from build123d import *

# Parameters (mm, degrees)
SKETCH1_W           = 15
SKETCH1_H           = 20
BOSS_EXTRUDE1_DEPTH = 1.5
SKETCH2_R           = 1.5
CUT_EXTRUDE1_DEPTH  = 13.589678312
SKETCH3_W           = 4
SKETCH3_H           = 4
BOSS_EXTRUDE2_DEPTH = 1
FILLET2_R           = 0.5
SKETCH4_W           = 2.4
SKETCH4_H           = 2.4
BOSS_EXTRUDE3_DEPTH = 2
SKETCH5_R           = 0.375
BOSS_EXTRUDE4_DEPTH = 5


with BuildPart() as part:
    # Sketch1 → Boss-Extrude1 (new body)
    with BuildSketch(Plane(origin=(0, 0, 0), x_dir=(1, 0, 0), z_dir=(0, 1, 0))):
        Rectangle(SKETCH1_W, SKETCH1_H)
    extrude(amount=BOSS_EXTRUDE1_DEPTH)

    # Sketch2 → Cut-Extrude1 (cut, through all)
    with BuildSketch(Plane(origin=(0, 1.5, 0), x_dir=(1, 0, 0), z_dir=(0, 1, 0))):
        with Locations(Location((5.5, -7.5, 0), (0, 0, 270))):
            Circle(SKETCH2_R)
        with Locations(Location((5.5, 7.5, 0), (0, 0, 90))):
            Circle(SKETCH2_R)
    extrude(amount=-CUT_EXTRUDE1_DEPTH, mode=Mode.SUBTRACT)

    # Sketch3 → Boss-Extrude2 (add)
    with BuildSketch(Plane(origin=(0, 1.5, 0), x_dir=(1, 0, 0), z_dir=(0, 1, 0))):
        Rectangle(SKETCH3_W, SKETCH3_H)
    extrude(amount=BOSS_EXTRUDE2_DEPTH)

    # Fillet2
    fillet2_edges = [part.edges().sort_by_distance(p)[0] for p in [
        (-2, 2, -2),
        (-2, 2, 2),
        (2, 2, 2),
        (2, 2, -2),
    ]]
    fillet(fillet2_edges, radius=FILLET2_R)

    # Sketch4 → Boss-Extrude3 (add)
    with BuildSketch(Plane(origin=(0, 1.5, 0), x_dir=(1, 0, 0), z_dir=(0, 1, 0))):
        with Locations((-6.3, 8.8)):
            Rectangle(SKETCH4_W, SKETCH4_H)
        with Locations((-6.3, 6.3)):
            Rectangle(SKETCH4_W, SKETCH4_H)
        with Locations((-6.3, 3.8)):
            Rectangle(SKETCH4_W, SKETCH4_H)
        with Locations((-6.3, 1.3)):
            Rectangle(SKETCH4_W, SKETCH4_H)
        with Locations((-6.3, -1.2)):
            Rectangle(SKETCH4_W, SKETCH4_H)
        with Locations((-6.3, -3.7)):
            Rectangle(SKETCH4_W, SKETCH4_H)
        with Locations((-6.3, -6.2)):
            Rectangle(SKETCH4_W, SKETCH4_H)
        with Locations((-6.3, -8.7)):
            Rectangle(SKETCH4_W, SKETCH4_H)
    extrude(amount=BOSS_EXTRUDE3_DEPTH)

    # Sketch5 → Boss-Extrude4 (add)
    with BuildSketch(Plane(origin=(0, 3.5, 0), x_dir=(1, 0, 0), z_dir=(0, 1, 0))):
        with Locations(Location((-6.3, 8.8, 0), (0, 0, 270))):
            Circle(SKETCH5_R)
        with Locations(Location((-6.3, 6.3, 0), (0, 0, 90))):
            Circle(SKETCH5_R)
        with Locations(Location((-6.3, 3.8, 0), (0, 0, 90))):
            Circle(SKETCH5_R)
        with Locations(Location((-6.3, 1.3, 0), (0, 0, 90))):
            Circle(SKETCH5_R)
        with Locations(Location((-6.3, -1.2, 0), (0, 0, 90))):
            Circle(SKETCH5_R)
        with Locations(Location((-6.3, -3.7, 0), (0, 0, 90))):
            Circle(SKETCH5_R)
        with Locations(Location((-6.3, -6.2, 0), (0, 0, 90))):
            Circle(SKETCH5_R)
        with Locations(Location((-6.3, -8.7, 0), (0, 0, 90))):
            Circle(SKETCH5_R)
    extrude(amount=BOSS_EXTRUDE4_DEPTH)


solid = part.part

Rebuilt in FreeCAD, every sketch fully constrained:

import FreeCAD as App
import Part
import Sketcher
from FreeCAD import Vector
Q = App.Units.Quantity


def edges_at(feature, points):
    """Names of the edges that pass closest to the given points."""
    edges = feature.Shape.Edges
    near = lambda p: min(range(len(edges)), key=lambda i: edges[i].distToShape(Part.Vertex(*p))[0])
    return sorted({f"Edge{near(p) + 1}" for p in points})

doc = App.newDocument("Part")
body = doc.addObject("PartDesign::Body", "Body")

# Sketch on XZ plane
sketch1 = body.newObject("Sketcher::SketchObject", "Sketch")
sketch1.AttachmentSupport = (doc.getObject("XZ_Plane"), [""])
sketch1.MapMode = "FlatFace"
sketch1.addGeometry([
    Part.LineSegment(Vector(-7.5, -10, 0), Vector(-7.5, 10, 0)),
    Part.LineSegment(Vector(-7.5, 10, 0), Vector(7.5, 10, 0)),
    Part.LineSegment(Vector(7.5, 10, 0), Vector(7.5, -10, 0)),
    Part.LineSegment(Vector(7.5, -10, 0), Vector(-7.5, -10, 0)),
], False)
sketch1.addConstraint([
    Sketcher.Constraint("Coincident", 0, 2, 1, 1),
    Sketcher.Constraint("Coincident", 1, 2, 2, 1),
    Sketcher.Constraint("Coincident", 2, 2, 3, 1),
    Sketcher.Constraint("Coincident", 3, 2, 0, 1),
    Sketcher.Constraint("Vertical", 0),
    Sketcher.Constraint("Horizontal", 1),
    Sketcher.Constraint("Vertical", 2),
    Sketcher.Constraint("Horizontal", 3),
    Sketcher.Constraint("Symmetric", 0, 2, 2, 2, -1, 1),
    Sketcher.Constraint("DistanceX", 1, 1, 1, 2, Q("15 mm")),
    Sketcher.Constraint("DistanceY", 0, 1, 0, 2, Q("20 mm")),
])
pad1 = body.newObject("PartDesign::Pad", "Pad")
pad1.Profile = sketch1
pad1.Length = 1.5
pad1.Reversed = True

# Sketch on XZ plane
sketch2 = body.newObject("Sketcher::SketchObject", "Sketch001")
sketch2.AttachmentSupport = (doc.getObject("XZ_Plane"), [""])
sketch2.MapMode = "FlatFace"
sketch2.AttachmentOffset = App.Placement(Vector(0, 0, -1.5), App.Rotation())
sketch2.addGeometry([
    Part.Circle(Vector(5.5, 7.5, 0), Vector(0, 0, 1), 1.5),
    Part.Circle(Vector(5.5, -7.5, 0), Vector(0, 0, 1), 1.5),
], False)
sketch2.addConstraint([
    Sketcher.Constraint("Equal", 0, 1),
    Sketcher.Constraint("Symmetric", 0, 3, 1, 3, -1),
    Sketcher.Constraint("Diameter", 0, Q("3 mm")),
    Sketcher.Constraint("DistanceY", 1, 3, 0, 3, Q("15 mm")),
    Sketcher.Constraint("DistanceX", -1, 1, 0, 3, Q("5.5 mm")),
])
pocket1 = body.newObject("PartDesign::Pocket", "Pocket")
pocket1.Profile = sketch2
pocket1.Type = "ThroughAll"
pocket1.Reversed = True

# Sketch on XZ plane
sketch3 = body.newObject("Sketcher::SketchObject", "Sketch002")
sketch3.AttachmentSupport = (doc.getObject("XZ_Plane"), [""])
sketch3.MapMode = "FlatFace"
sketch3.AttachmentOffset = App.Placement(Vector(0, 0, -1.5), App.Rotation())
sketch3.addGeometry([
    Part.LineSegment(Vector(-2, -2, 0), Vector(-2, 2, 0)),
    Part.LineSegment(Vector(-2, 2, 0), Vector(2, 2, 0)),
    Part.LineSegment(Vector(2, 2, 0), Vector(2, -2, 0)),
    Part.LineSegment(Vector(2, -2, 0), Vector(-2, -2, 0)),
], False)
sketch3.addConstraint([
    Sketcher.Constraint("Coincident", 0, 2, 1, 1),
    Sketcher.Constraint("Coincident", 1, 2, 2, 1),
    Sketcher.Constraint("Coincident", 2, 2, 3, 1),
    Sketcher.Constraint("Coincident", 3, 2, 0, 1),
    Sketcher.Constraint("Vertical", 0),
    Sketcher.Constraint("Horizontal", 1),
    Sketcher.Constraint("Vertical", 2),
    Sketcher.Constraint("Horizontal", 3),
    Sketcher.Constraint("Symmetric", 0, 2, 2, 2, -1, 1),
    Sketcher.Constraint("Equal", 3, 0),
    Sketcher.Constraint("DistanceX", 1, 1, 1, 2, Q("4 mm")),
])
pad2 = body.newObject("PartDesign::Pad", "Pad001")
pad2.Profile = sketch3
pad2.Length = 1
pad2.Reversed = True
doc.recompute()

fillet = body.newObject("PartDesign::Fillet", "Fillet")
fillet.Base = (pad2, edges_at(pad2, [
    (-2, 2, -2),
    (-2, 2, 2),
    (2, 2, 2),
    (2, 2, -2),
]))
fillet.Radius = 0.5

# Sketch on XZ plane
sketch4 = body.newObject("Sketcher::SketchObject", "Sketch003")
sketch4.AttachmentSupport = (doc.getObject("XZ_Plane"), [""])
sketch4.MapMode = "FlatFace"
sketch4.AttachmentOffset = App.Placement(Vector(0, 0, -1.5), App.Rotation())
sketch4.addGeometry([
    Part.LineSegment(Vector(-7.5, -10, 0), Vector(-7.5, -7.6, 0)),  # 0
    Part.LineSegment(Vector(-7.5, -7.6, 0), Vector(-5.1, -7.6, 0)),  # 1
    Part.LineSegment(Vector(-5.1, -7.6, 0), Vector(-5.1, -10, 0)),  # 2
    Part.LineSegment(Vector(-5.1, -10, 0), Vector(-7.5, -10, 0)),  # 3
    Part.LineSegment(Vector(-7.5, -7.5, 0), Vector(-7.5, -5.1, 0)),  # 4
    Part.LineSegment(Vector(-7.5, -5.1, 0), Vector(-5.1, -5.1, 0)),  # 5
    Part.LineSegment(Vector(-5.1, -5.1, 0), Vector(-5.1, -7.5, 0)),  # 6
    Part.LineSegment(Vector(-5.1, -7.5, 0), Vector(-7.5, -7.5, 0)),  # 7
    Part.LineSegment(Vector(-7.5, -5, 0), Vector(-7.5, -2.6, 0)),  # 8
    Part.LineSegment(Vector(-7.5, -2.6, 0), Vector(-5.1, -2.6, 0)),  # 9
    Part.LineSegment(Vector(-5.1, -2.6, 0), Vector(-5.1, -5, 0)),  # 10
    Part.LineSegment(Vector(-5.1, -5, 0), Vector(-7.5, -5, 0)),  # 11
    Part.LineSegment(Vector(-7.5, -2.5, 0), Vector(-7.5, -0.1, 0)),  # 12
    Part.LineSegment(Vector(-7.5, -0.1, 0), Vector(-5.1, -0.1, 0)),  # 13
    Part.LineSegment(Vector(-5.1, -0.1, 0), Vector(-5.1, -2.5, 0)),  # 14
    Part.LineSegment(Vector(-5.1, -2.5, 0), Vector(-7.5, -2.5, 0)),  # 15
    Part.LineSegment(Vector(-7.5, 0, 0), Vector(-7.5, 2.4, 0)),  # 16
    Part.LineSegment(Vector(-7.5, 2.4, 0), Vector(-5.1, 2.4, 0)),  # 17
    Part.LineSegment(Vector(-5.1, 2.4, 0), Vector(-5.1, 0, 0)),  # 18
    Part.LineSegment(Vector(-5.1, 0, 0), Vector(-7.5, 0, 0)),  # 19
    Part.LineSegment(Vector(-7.5, 2.5, 0), Vector(-7.5, 4.9, 0)),  # 20
    Part.LineSegment(Vector(-7.5, 4.9, 0), Vector(-5.1, 4.9, 0)),  # 21
    Part.LineSegment(Vector(-5.1, 4.9, 0), Vector(-5.1, 2.5, 0)),  # 22
    Part.LineSegment(Vector(-5.1, 2.5, 0), Vector(-7.5, 2.5, 0)),  # 23
    Part.LineSegment(Vector(-7.5, 5, 0), Vector(-7.5, 7.4, 0)),  # 24
    Part.LineSegment(Vector(-7.5, 7.4, 0), Vector(-5.1, 7.4, 0)),  # 25
    Part.LineSegment(Vector(-5.1, 7.4, 0), Vector(-5.1, 5, 0)),  # 26
    Part.LineSegment(Vector(-5.1, 5, 0), Vector(-7.5, 5, 0)),  # 27
    Part.LineSegment(Vector(-7.5, 7.5, 0), Vector(-7.5, 9.9, 0)),  # 28
    Part.LineSegment(Vector(-7.5, 9.9, 0), Vector(-5.1, 9.9, 0)),  # 29
    Part.LineSegment(Vector(-5.1, 9.9, 0), Vector(-5.1, 7.5, 0)),  # 30
    Part.LineSegment(Vector(-5.1, 7.5, 0), Vector(-7.5, 7.5, 0)),  # 31
], False)
sketch4.addConstraint([
    Sketcher.Constraint("Coincident", 0, 2, 1, 1),
    Sketcher.Constraint("Coincident", 1, 2, 2, 1),
    Sketcher.Constraint("Coincident", 2, 2, 3, 1),
    Sketcher.Constraint("Coincident", 3, 2, 0, 1),
    Sketcher.Constraint("Coincident", 4, 2, 5, 1),
    Sketcher.Constraint("Coincident", 5, 2, 6, 1),
    Sketcher.Constraint("Coincident", 6, 2, 7, 1),
    Sketcher.Constraint("Coincident", 7, 2, 4, 1),
    Sketcher.Constraint("Coincident", 8, 2, 9, 1),
    Sketcher.Constraint("Coincident", 9, 2, 10, 1),
    Sketcher.Constraint("Coincident", 10, 2, 11, 1),
    Sketcher.Constraint("Coincident", 11, 2, 8, 1),
    Sketcher.Constraint("Coincident", 12, 2, 13, 1),
    Sketcher.Constraint("Coincident", 13, 2, 14, 1),
    Sketcher.Constraint("Coincident", 14, 2, 15, 1),
    Sketcher.Constraint("Coincident", 15, 2, 12, 1),
    Sketcher.Constraint("Coincident", 16, 2, 17, 1),
    Sketcher.Constraint("Coincident", 17, 2, 18, 1),
    Sketcher.Constraint("Coincident", 18, 2, 19, 1),
    Sketcher.Constraint("Coincident", 19, 2, 16, 1),
    Sketcher.Constraint("Coincident", 20, 2, 21, 1),
    Sketcher.Constraint("Coincident", 21, 2, 22, 1),
    Sketcher.Constraint("Coincident", 22, 2, 23, 1),
    Sketcher.Constraint("Coincident", 23, 2, 20, 1),
    Sketcher.Constraint("Coincident", 24, 2, 25, 1),
    Sketcher.Constraint("Coincident", 25, 2, 26, 1),
    Sketcher.Constraint("Coincident", 26, 2, 27, 1),
    Sketcher.Constraint("Coincident", 27, 2, 24, 1),
    Sketcher.Constraint("Coincident", 28, 2, 29, 1),
    Sketcher.Constraint("Coincident", 29, 2, 30, 1),
    Sketcher.Constraint("Coincident", 30, 2, 31, 1),
    Sketcher.Constraint("Coincident", 31, 2, 28, 1),
    Sketcher.Constraint("Vertical", 0),
    Sketcher.Constraint("Horizontal", 1),
    Sketcher.Constraint("Vertical", 2),
    Sketcher.Constraint("Horizontal", 3),
    Sketcher.Constraint("Vertical", 4),
    Sketcher.Constraint("Horizontal", 5),
    Sketcher.Constraint("Vertical", 6),
    Sketcher.Constraint("Horizontal", 7),
    Sketcher.Constraint("Vertical", 8),
    Sketcher.Constraint("Horizontal", 9),
    Sketcher.Constraint("Vertical", 10),
    Sketcher.Constraint("Horizontal", 11),
    Sketcher.Constraint("Vertical", 12),
    Sketcher.Constraint("Horizontal", 13),
    Sketcher.Constraint("Vertical", 14),
    Sketcher.Constraint("Horizontal", 15),
    Sketcher.Constraint("Vertical", 16),
    Sketcher.Constraint("Horizontal", 17),
    Sketcher.Constraint("Vertical", 18),
    Sketcher.Constraint("Horizontal", 19),
    Sketcher.Constraint("Vertical", 20),
    Sketcher.Constraint("Horizontal", 21),
    Sketcher.Constraint("Vertical", 22),
    Sketcher.Constraint("Horizontal", 23),
    Sketcher.Constraint("Vertical", 24),
    Sketcher.Constraint("Horizontal", 25),
    Sketcher.Constraint("Vertical", 26),
    Sketcher.Constraint("Horizontal", 27),
    Sketcher.Constraint("Vertical", 28),
    Sketcher.Constraint("Horizontal", 29),
    Sketcher.Constraint("Vertical", 30),
    Sketcher.Constraint("Horizontal", 31),
    Sketcher.Constraint("Symmetric", 14, 2, 22, 2, -1),
    Sketcher.Constraint("Symmetric", 10, 2, 26, 2, -1),
    Sketcher.Constraint("Symmetric", 6, 2, 30, 2, -1),
    Sketcher.Constraint("PointOnObject", 18, 2, -1),
    Sketcher.Constraint("Vertical", 3, 2, 4, 2),
    Sketcher.Constraint("Vertical", 2, 2, 5, 2),
    Sketcher.Constraint("Vertical", 7, 2, 8, 2),
    Sketcher.Constraint("Vertical", 6, 2, 9, 2),
    Sketcher.Constraint("Vertical", 11, 2, 12, 2),
    Sketcher.Constraint("Vertical", 10, 2, 13, 2),
    Sketcher.Constraint("Vertical", 15, 2, 16, 2),
    Sketcher.Constraint("Vertical", 14, 2, 17, 2),
    Sketcher.Constraint("Vertical", 19, 2, 20, 2),
    Sketcher.Constraint("Vertical", 23, 2, 24, 2),
    Sketcher.Constraint("Vertical", 27, 2, 28, 2),
    Sketcher.Constraint("Equal", 31, 0),
    Sketcher.Constraint("Equal", 2, 4),
    Sketcher.Constraint("Equal", 6, 8),
    Sketcher.Constraint("Equal", 10, 12),
    Sketcher.Constraint("Equal", 14, 16),
    Sketcher.Constraint("Equal", 18, 20),
    Sketcher.Constraint("Equal", 22, 24),
    Sketcher.Constraint("Equal", 26, 28),
    Sketcher.Constraint("DistanceX", 1, 1, 1, 2, Q("2.4 mm")),
    Sketcher.Constraint("DistanceY", 2, 2, -1, 1, Q("10 mm")),
    Sketcher.Constraint("DistanceY", 10, 2, -1, 1, Q("5 mm")),
    Sketcher.Constraint("DistanceY", 4, 2, 12, 2, Q("5 mm")),
    Sketcher.Constraint("DistanceY", 12, 2, 20, 2, Q("5 mm")),
    Sketcher.Constraint("DistanceX", 0, 2, -1, 1, Q("7.5 mm")),
])
pad3 = body.newObject("PartDesign::Pad", "Pad002")
pad3.Profile = sketch4
pad3.Length = 2
pad3.Reversed = True

# Sketch on XZ plane
sketch5 = body.newObject("Sketcher::SketchObject", "Sketch004")
sketch5.AttachmentSupport = (doc.getObject("XZ_Plane"), [""])
sketch5.MapMode = "FlatFace"
sketch5.AttachmentOffset = App.Placement(Vector(0, 0, -3.5), App.Rotation())
sketch5.addGeometry([
    Part.Circle(Vector(-6.3, -8.8, 0), Vector(0, 0, 1), 0.375),  # 0
    Part.Circle(Vector(-6.3, -6.3, 0), Vector(0, 0, 1), 0.375),  # 1
    Part.Circle(Vector(-6.3, -3.8, 0), Vector(0, 0, 1), 0.375),  # 2
    Part.Circle(Vector(-6.3, -1.3, 0), Vector(0, 0, 1), 0.375),  # 3
    Part.Circle(Vector(-6.3, 1.2, 0), Vector(0, 0, 1), 0.375),  # 4
    Part.Circle(Vector(-6.3, 3.7, 0), Vector(0, 0, 1), 0.375),  # 5
    Part.Circle(Vector(-6.3, 6.2, 0), Vector(0, 0, 1), 0.375),  # 6
    Part.Circle(Vector(-6.3, 8.7, 0), Vector(0, 0, 1), 0.375),  # 7
], False)
sketch5.addConstraint([
    Sketcher.Constraint("Equal", 0, 1),
    Sketcher.Constraint("Equal", 1, 2),
    Sketcher.Constraint("Equal", 2, 3),
    Sketcher.Constraint("Equal", 3, 4),
    Sketcher.Constraint("Equal", 4, 5),
    Sketcher.Constraint("Equal", 5, 6),
    Sketcher.Constraint("Equal", 6, 7),
    Sketcher.Constraint("Vertical", 0, 3, 1, 3),
    Sketcher.Constraint("Vertical", 1, 3, 2, 3),
    Sketcher.Constraint("Vertical", 2, 3, 3, 3),
    Sketcher.Constraint("Vertical", 3, 3, 4, 3),
    Sketcher.Constraint("Vertical", 4, 3, 5, 3),
    Sketcher.Constraint("Vertical", 5, 3, 6, 3),
    Sketcher.Constraint("Vertical", 6, 3, 7, 3),
    Sketcher.Constraint("Diameter", 0, Q("0.75 mm")),
    Sketcher.Constraint("DistanceY", 0, 3, 2, 3, Q("5 mm")),
    Sketcher.Constraint("DistanceY", 1, 3, 3, 3, Q("5 mm")),
    Sketcher.Constraint("DistanceY", 2, 3, 4, 3, Q("5 mm")),
    Sketcher.Constraint("DistanceY", 3, 3, 5, 3, Q("5 mm")),
    Sketcher.Constraint("DistanceY", 4, 3, 6, 3, Q("5 mm")),
    Sketcher.Constraint("DistanceY", 5, 3, 7, 3, Q("5 mm")),
    Sketcher.Constraint("DistanceX", 0, 3, -1, 1, Q("6.3 mm")),
    Sketcher.Constraint("DistanceY", 0, 3, -1, 1, Q("8.8 mm")),
    Sketcher.Constraint("DistanceY", 1, 3, -1, 1, Q("6.3 mm")),
])
pad4 = body.newObject("PartDesign::Pad", "Pad003")
pad4.Profile = sketch5
pad4.Length = 5
pad4.Reversed = True

doc.recompute()
